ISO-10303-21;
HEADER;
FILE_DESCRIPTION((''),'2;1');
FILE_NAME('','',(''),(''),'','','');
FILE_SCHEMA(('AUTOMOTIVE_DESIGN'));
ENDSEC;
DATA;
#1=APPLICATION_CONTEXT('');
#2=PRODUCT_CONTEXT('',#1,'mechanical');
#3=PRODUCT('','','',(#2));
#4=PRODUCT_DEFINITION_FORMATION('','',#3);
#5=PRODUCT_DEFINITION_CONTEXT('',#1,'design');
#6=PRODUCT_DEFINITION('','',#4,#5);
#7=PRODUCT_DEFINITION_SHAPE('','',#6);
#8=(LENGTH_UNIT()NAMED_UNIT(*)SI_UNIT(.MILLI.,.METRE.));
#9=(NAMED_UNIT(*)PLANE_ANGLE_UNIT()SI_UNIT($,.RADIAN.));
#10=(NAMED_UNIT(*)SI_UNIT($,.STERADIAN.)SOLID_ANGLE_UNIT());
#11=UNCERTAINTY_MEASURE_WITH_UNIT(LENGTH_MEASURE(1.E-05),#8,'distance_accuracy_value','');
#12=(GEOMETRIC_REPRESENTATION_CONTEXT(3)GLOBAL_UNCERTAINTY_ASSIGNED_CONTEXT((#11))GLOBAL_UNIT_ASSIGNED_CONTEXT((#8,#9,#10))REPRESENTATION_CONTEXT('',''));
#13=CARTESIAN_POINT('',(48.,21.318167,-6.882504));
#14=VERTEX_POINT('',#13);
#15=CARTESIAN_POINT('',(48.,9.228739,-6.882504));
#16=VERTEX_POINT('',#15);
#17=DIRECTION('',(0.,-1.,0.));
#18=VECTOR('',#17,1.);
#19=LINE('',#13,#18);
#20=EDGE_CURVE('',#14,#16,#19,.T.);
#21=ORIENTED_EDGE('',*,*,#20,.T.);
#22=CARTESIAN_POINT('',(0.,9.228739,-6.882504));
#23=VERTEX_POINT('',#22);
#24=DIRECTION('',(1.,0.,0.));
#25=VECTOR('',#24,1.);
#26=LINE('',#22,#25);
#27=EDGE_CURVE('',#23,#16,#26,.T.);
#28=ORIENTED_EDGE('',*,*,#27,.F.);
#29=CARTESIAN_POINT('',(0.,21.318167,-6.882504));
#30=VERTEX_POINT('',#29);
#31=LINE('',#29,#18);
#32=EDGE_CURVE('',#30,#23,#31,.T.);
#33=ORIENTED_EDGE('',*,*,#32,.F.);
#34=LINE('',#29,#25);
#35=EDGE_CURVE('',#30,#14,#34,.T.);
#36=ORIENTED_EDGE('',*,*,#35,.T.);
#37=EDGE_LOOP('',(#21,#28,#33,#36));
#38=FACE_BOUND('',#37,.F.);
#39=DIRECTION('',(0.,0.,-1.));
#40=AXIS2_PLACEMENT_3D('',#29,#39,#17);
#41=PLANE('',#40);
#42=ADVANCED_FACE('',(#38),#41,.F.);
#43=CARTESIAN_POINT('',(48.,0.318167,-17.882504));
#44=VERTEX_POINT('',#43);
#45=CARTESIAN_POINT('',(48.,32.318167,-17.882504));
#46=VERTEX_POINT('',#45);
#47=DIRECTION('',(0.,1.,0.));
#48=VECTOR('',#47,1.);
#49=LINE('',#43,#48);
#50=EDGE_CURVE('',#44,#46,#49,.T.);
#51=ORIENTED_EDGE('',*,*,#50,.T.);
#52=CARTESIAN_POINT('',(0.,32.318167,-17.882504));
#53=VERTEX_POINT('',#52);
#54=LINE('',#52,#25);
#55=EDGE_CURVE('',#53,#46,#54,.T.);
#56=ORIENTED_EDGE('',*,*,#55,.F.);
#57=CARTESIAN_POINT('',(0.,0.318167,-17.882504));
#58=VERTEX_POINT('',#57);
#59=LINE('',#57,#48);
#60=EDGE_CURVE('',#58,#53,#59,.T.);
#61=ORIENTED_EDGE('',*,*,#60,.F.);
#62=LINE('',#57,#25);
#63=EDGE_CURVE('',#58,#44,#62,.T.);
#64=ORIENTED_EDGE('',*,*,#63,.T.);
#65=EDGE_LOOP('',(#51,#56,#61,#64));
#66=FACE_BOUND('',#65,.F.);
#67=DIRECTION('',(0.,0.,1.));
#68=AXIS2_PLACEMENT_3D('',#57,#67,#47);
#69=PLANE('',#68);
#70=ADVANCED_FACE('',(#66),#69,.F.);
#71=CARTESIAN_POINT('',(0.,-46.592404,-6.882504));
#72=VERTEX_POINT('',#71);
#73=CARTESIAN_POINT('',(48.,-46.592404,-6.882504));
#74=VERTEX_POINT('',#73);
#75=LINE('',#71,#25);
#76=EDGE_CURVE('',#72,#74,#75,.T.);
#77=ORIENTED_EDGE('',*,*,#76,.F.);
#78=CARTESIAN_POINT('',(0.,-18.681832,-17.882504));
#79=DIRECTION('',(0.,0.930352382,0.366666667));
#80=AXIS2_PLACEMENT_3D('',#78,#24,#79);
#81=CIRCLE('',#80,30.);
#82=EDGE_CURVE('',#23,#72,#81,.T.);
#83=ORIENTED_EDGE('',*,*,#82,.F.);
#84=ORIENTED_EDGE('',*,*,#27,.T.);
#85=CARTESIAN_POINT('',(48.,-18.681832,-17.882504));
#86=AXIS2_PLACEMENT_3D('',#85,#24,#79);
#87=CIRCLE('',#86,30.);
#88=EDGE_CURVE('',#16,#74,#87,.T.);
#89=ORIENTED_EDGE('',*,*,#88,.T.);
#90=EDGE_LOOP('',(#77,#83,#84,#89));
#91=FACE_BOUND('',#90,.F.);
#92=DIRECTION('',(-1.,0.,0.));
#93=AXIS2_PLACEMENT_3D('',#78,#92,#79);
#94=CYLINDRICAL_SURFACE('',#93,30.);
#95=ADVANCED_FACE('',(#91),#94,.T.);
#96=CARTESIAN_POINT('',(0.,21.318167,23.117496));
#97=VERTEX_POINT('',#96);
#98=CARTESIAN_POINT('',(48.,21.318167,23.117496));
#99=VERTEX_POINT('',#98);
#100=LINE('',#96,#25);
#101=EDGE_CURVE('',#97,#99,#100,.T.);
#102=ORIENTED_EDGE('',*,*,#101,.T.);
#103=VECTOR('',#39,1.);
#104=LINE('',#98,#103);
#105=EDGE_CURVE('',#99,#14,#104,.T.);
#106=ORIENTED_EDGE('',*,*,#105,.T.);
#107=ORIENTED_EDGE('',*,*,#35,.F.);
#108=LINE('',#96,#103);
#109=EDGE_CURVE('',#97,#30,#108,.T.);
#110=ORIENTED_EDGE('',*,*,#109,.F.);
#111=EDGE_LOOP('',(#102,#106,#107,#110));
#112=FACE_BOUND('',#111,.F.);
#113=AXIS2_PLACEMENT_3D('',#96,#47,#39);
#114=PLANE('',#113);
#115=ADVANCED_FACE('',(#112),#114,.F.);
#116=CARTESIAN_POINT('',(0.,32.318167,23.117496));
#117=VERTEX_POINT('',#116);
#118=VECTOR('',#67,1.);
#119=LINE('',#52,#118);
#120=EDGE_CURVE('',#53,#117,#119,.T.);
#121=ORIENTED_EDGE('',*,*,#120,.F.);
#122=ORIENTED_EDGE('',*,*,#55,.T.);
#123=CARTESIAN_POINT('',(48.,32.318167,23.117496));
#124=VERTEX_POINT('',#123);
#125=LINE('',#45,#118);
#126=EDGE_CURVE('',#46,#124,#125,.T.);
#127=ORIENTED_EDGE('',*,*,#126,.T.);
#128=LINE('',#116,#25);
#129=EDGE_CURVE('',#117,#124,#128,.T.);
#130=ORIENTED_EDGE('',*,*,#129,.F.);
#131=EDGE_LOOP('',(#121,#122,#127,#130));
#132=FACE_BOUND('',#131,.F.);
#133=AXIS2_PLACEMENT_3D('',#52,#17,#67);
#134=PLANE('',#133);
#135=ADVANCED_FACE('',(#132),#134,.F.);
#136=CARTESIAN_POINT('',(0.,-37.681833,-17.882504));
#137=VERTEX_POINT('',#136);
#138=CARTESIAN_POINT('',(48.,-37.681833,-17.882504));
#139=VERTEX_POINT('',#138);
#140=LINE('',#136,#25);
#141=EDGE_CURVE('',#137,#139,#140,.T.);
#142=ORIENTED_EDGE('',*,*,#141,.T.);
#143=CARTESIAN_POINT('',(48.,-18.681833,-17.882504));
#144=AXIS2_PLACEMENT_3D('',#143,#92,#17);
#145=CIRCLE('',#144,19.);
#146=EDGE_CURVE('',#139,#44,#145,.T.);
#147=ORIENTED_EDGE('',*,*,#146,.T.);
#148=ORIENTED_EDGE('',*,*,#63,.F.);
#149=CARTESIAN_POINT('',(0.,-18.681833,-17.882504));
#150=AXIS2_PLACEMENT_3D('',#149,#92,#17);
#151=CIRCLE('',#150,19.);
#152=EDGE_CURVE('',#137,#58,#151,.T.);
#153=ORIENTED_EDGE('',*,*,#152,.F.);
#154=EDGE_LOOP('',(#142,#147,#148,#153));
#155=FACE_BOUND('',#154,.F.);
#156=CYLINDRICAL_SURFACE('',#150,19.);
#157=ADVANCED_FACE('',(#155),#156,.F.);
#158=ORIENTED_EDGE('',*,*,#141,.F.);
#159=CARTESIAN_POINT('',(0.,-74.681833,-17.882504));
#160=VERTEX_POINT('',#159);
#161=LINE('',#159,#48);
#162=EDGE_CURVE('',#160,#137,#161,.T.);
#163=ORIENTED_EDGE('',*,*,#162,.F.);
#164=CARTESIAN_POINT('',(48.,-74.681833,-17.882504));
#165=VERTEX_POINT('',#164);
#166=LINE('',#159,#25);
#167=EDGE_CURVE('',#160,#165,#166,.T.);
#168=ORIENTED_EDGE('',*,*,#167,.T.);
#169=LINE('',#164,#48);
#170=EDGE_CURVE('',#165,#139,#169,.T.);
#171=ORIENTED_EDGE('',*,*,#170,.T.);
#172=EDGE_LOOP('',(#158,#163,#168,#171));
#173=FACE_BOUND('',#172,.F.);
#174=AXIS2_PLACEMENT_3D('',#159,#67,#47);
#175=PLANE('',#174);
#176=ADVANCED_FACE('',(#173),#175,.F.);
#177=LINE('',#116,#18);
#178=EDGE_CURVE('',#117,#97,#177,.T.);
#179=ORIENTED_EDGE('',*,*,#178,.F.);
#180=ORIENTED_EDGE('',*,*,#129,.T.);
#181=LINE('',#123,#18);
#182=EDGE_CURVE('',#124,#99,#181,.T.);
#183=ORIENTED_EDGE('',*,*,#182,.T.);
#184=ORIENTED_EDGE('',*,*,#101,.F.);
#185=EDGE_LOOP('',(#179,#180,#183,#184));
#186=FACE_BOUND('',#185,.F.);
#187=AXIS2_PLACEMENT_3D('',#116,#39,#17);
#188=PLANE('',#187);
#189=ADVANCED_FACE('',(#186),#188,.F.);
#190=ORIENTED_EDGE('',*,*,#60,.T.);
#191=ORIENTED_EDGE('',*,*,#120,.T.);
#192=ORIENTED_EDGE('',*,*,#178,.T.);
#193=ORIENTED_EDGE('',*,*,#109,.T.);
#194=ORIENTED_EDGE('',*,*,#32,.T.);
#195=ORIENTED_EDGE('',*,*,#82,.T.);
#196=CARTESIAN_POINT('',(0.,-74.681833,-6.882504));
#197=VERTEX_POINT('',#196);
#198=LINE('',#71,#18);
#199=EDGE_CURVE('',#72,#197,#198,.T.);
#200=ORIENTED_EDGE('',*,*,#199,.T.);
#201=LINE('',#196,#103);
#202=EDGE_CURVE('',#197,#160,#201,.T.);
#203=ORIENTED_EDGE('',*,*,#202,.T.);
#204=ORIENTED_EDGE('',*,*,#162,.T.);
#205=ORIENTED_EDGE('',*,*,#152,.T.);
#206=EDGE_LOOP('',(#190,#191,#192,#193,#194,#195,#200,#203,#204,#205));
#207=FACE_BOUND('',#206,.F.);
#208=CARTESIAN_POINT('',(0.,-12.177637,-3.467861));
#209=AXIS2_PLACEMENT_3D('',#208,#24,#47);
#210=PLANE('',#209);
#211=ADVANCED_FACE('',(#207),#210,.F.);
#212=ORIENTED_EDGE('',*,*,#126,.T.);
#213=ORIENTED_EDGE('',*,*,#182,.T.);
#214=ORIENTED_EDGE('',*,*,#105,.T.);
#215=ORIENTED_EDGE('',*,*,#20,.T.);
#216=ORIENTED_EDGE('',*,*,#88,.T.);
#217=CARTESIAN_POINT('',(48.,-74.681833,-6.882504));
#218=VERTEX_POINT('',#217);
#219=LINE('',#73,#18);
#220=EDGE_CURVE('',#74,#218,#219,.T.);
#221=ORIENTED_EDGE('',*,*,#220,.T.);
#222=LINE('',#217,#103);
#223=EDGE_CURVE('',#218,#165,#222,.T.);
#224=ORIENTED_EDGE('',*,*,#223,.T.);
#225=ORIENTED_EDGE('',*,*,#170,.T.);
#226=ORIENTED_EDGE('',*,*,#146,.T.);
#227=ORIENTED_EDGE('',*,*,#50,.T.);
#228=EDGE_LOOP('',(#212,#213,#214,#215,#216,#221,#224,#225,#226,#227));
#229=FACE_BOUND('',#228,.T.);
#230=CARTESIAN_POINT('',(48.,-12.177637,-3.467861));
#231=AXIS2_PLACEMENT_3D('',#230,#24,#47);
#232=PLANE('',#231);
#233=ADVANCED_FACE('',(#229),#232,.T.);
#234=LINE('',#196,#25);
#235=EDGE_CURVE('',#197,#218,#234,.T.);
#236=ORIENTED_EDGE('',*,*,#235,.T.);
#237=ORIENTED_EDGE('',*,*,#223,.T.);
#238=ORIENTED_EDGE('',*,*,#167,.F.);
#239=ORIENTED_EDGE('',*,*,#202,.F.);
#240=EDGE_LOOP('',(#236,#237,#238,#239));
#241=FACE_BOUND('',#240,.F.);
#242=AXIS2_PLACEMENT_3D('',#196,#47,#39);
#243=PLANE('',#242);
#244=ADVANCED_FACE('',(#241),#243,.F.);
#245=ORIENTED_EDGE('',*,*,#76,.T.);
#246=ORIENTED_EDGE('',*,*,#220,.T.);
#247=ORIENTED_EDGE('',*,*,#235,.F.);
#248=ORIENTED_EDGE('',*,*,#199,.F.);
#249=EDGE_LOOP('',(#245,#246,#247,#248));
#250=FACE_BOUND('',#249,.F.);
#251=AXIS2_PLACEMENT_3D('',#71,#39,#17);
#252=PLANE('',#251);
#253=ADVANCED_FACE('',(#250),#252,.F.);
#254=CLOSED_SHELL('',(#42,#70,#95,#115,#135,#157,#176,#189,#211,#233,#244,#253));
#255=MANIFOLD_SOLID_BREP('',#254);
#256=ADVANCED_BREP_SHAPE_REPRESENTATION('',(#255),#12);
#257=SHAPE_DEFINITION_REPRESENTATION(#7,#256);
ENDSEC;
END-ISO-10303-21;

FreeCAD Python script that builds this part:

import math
import FreeCAD as App
import Part
import Sketcher

V = App.Vector

doc = App.newDocument("Part")
params = doc.addObject("Spreadsheet::Sheet", "Params")
for row, (alias, value) in enumerate([
    ("sketch1_radius", "19 mm"),
    ("sketch1_radius2", "30 mm"),
    ("sketch1_width", "32 mm"),
    ("sketch1_width2", "11 mm"),
    ("sketch1_width3", "37 mm"),
    ("pad1_length", "48 mm"),
], start=1):
    params.set(f"A{row}", alias)
    params.set(f"B{row}", "=" + value)
    params.setAlias(f"B{row}", alias)

body = doc.addObject("PartDesign::Body", "Body")

# Sketch on YZ plane
sketch1 = doc.addObject("Sketcher::SketchObject", "Sketch")
body.addObject(sketch1)
sketch1.AttachmentSupport = (doc.YZ_Plane, [""])
sketch1.MapMode = "FlatFace"
sketch1.addGeometry([
    Part.ArcOfCircle(Part.Circle(V(-18.681833, -17.882504, 0), V(0, 0, 1), 19), math.radians(0), math.radians(180)),  # 0
    Part.LineSegment(V(0.318167, -17.882504, 0), V(32.318167, -17.882504, 0)),  # 1
    Part.LineSegment(V(32.318167, -17.882504, 0), V(32.318167, 23.117496, 0)),  # 2
    Part.LineSegment(V(32.318167, 23.117496, 0), V(21.318167, 23.117496, 0)),  # 3
    Part.LineSegment(V(21.318167, 23.117496, 0), V(21.318167, -6.882504, 0)),  # 4
    Part.LineSegment(V(21.318167, -6.882504, 0), V(9.228739, -6.882504, 0)),  # 5
    Part.ArcOfCircle(Part.Circle(V(-18.681832, -17.882504, 0), V(0, 0, 1), 30), math.radians(21.510188), math.radians(158.489812)),  # 6
    Part.LineSegment(V(-46.592404, -6.882504, 0), V(-74.681833, -6.882504, 0)),  # 7
    Part.LineSegment(V(-74.681833, -6.882504, 0), V(-74.681833, -17.882504, 0)),  # 8
    Part.LineSegment(V(-74.681833, -17.882504, 0), V(-37.681833, -17.882504, 0)),  # 9
], False)
sketch1.addConstraint([
    Sketcher.Constraint("Coincident", 0, 1, 1, 1),
    Sketcher.Constraint("Coincident", 1, 2, 2, 1),
    Sketcher.Constraint("Coincident", 2, 2, 3, 1),
    Sketcher.Constraint("Coincident", 3, 2, 4, 1),
    Sketcher.Constraint("Coincident", 4, 2, 5, 1),
    Sketcher.Constraint("Coincident", 5, 2, 6, 1),
    Sketcher.Constraint("Coincident", 6, 2, 7, 1),
    Sketcher.Constraint("Coincident", 7, 2, 8, 1),
    Sketcher.Constraint("Coincident", 8, 2, 9, 1),
    Sketcher.Constraint("Coincident", 9, 2, 0, 2),
    Sketcher.Constraint("Horizontal", 1),
    Sketcher.Constraint("Vertical", 2),
    Sketcher.Constraint("Horizontal", 3),
    Sketcher.Constraint("Vertical", 4),
    Sketcher.Constraint("Horizontal", 5),
    Sketcher.Constraint("Horizontal", 7),
    Sketcher.Constraint("Vertical", 8),
    Sketcher.Constraint("Horizontal", 9),
    Sketcher.Constraint("Coincident", 6, 3, 0, 3),
    Sketcher.Constraint("Horizontal", 6, 3, 0, 1),
    Sketcher.Constraint("Horizontal", 5, 2, 6, 2),
    Sketcher.Constraint("Horizontal", 1, 2, 8, 2),
    Sketcher.Constraint("Equal", 3, 8),
    Sketcher.Constraint("Radius", 0, 19.0),
    Sketcher.Constraint("Radius", 6, 30.0),
    Sketcher.Constraint("DistanceX", 1, 1, 1, 2, 32.0),
    Sketcher.Constraint("DistanceX", 3, 2, 3, 1, 11.0),
    Sketcher.Constraint("DistanceX", 9, 1, 9, 2, 37.0),
    Sketcher.Constraint("DistanceY", 2, 1, 2, 2, 41.0),
    Sketcher.Constraint("DistanceX", -1, 1, 5, 2, 9.228739),
    Sketcher.Constraint("DistanceY", 0, 3, -1, 1, 17.882504),
])
sketch1.setExpression("Constraints[23]", "Params.sketch1_radius")
sketch1.setExpression("Constraints[24]", "Params.sketch1_radius2")
sketch1.setExpression("Constraints[25]", "Params.sketch1_width")
sketch1.setExpression("Constraints[26]", "Params.sketch1_width2")
sketch1.setExpression("Constraints[27]", "Params.sketch1_width3")
pad1 = doc.addObject("PartDesign::Pad", "Pad")
body.addObject(pad1)
pad1.Profile = sketch1
pad1.setExpression("Length", "Params.pad1_length")

doc.recompute()
